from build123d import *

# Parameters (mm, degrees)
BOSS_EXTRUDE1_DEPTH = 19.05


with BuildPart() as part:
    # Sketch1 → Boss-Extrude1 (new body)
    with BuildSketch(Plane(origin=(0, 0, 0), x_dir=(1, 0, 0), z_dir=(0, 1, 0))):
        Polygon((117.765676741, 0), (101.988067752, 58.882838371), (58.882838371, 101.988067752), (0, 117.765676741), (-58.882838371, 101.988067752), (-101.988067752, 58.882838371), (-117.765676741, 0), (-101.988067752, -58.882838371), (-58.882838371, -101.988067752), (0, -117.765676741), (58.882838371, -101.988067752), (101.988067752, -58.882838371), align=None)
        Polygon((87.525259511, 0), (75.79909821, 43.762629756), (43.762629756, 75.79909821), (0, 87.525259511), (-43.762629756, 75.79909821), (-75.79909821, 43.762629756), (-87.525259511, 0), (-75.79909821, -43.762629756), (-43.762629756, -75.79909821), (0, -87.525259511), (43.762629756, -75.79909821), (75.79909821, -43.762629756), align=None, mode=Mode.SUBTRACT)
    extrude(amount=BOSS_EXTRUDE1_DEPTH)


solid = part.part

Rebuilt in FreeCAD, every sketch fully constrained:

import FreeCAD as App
import Part
import Sketcher

V = App.Vector
Q = App.Units.Quantity

doc = App.newDocument("Part")
body = doc.addObject("PartDesign::Body", "Body")

sketch1 = body.newObject("Sketcher::SketchObject", "Sketch")
sketch1.AttachmentSupport = (doc.getObject("XZ_Plane"), [""])
sketch1.MapMode = "FlatFace"
sketch1.addGeometry([
    Part.LineSegment(V(118, 0, 0), V(102, -59, 0)),
    Part.LineSegment(V(102, -59, 0), V(59, -102, 0)),
    Part.LineSegment(V(59, -102, 0), V(0, -118, 0)),
    Part.LineSegment(V(0, -118, 0), V(-59, -102, 0)),
    Part.LineSegment(V(-59, -102, 0), V(-102, -59, 0)),
    Part.LineSegment(V(-102, -59, 0), V(-118, 0, 0)),
    Part.LineSegment(V(-118, 0, 0), V(-102, 59, 0)),
    Part.LineSegment(V(-102, 59, 0), V(-59, 102, 0)),
    Part.LineSegment(V(-59, 102, 0), V(0, 118, 0)),
    Part.LineSegment(V(0, 118, 0), V(59, 102, 0)),
    Part.LineSegment(V(59, 102, 0), V(102, 59, 0)),
    Part.LineSegment(V(102, 59, 0), V(118, 0, 0)),
    Part.LineSegment(V(76, -44, 0), V(88, 0, 0)),
    Part.LineSegment(V(88, 0, 0), V(76, 44, 0)),
    Part.LineSegment(V(76, 44, 0), V(44, 76, 0)),
    Part.LineSegment(V(44, 76, 0), V(0, 88, 0)),
    Part.LineSegment(V(0, 88, 0), V(-44, 76, 0)),
    Part.LineSegment(V(-44, 76, 0), V(-76, 44, 0)),
    Part.LineSegment(V(-76, 44, 0), V(-88, 0, 0)),
    Part.LineSegment(V(-88, 0, 0), V(-76, -44, 0)),
    Part.LineSegment(V(-76, -44, 0), V(-44, -76, 0)),
    Part.LineSegment(V(-44, -76, 0), V(0, -88, 0)),
    Part.LineSegment(V(0, -88, 0), V(44, -76, 0)),
    Part.LineSegment(V(44, -76, 0), V(76, -44, 0)),
], False)
sketch1.addConstraint([
    Sketcher.Constraint("Coincident", 0, 2, 1, 1),
    Sketcher.Constraint("Coincident", 1, 2, 2, 1),
    Sketcher.Constraint("Coincident", 2, 2, 3, 1),
    Sketcher.Constraint("Coincident", 3, 2, 4, 1),
    Sketcher.Constraint("Coincident", 4, 2, 5, 1),
    Sketcher.Constraint("Coincident", 5, 2, 6, 1),
    Sketcher.Constraint("Coincident", 6, 2, 7, 1),
    Sketcher.Constraint("Coincident", 7, 2, 8, 1),
    Sketcher.Constraint("Coincident", 8, 2, 9, 1),
    Sketcher.Constraint("Coincident", 9, 2, 10, 1),
    Sketcher.Constraint("Coincident", 10, 2, 11, 1),
    Sketcher.Constraint("Coincident", 11, 2, 0, 1),
    Sketcher.Constraint("Coincident", 12, 2, 13, 1),
    Sketcher.Constraint("Coincident", 13, 2, 14, 1),
    Sketcher.Constraint("Coincident", 14, 2, 15, 1),
    Sketcher.Constraint("Coincident", 15, 2, 16, 1),
    Sketcher.Constraint("Coincident", 16, 2, 17, 1),
    Sketcher.Constraint("Coincident", 17, 2, 18, 1),
    Sketcher.Constraint("Coincident", 18, 2, 19, 1),
    Sketcher.Constraint("Coincident", 19, 2, 20, 1),
    Sketcher.Constraint("Coincident", 20, 2, 21, 1),
    Sketcher.Constraint("Coincident", 21, 2, 22, 1),
    Sketcher.Constraint("Coincident", 22, 2, 23, 1),
    Sketcher.Constraint("Coincident", 23, 2, 12, 1),
    Sketcher.Constraint("Symmetric", 0, 2, 6, 2, -1, 1),
    Sketcher.Constraint("Symmetric", 1, 2, 7, 2, -1, 1),
    Sketcher.Constraint("Symmetric", 2, 2, 8, 2, -1, 1),
    Sketcher.Constraint("Symmetric", 3, 2, 9, 2, -1, 1),
    Sketcher.Constraint("Symmetric", 4, 2, 10, 2, -1, 1),
    Sketcher.Constraint("Symmetric", 5, 2, 11, 2, -1, 1),
    Sketcher.Constraint("Symmetric", 12, 2, 18, 2, -1, 1),
    Sketcher.Constraint("Symmetric", 13, 2, 19, 2, -1, 1),
    Sketcher.Constraint("Symmetric", 14, 2, 20, 2, -1, 1),
    Sketcher.Constraint("Symmetric", 15, 2, 21, 2, -1, 1),
    Sketcher.Constraint("Symmetric", 16, 2, 22, 2, -1, 1),
    Sketcher.Constraint("Symmetric", 17, 2, 23, 2, -1, 1),
    Sketcher.Constraint("Symmetric", 1, 2, 3, 2, -2),
    Sketcher.Constraint("Symmetric", 0, 2, 4, 2, -2),
    Sketcher.Constraint("Symmetric", 14, 2, 16, 2, -2),
    Sketcher.Constraint("Symmetric", 13, 2, 17, 2, -2),
    Sketcher.Constraint("PointOnObject", 2, 2, -2),
    Sketcher.Constraint("PointOnObject", 5, 2, -1),
    Sketcher.Constraint("PointOnObject", 12, 2, -1),
    Sketcher.Constraint("PointOnObject", 15, 2, -2),
    Sketcher.Constraint("Perpendicular", 0, 3),
    Sketcher.Constraint("Perpendicular", 1, 4),
    Sketcher.Constraint("Perpendicular", 9, 12),
    Sketcher.Constraint("Parallel", 10, 14),
    Sketcher.Constraint("Perpendicular", 12, 15),
    Sketcher.Constraint("Equal", 0, 1),
    Sketcher.Constraint("Equal", 1, 2),
    Sketcher.Constraint("Equal", 13, 14),
    Sketcher.Constraint("Equal", 14, 15),
    Sketcher.Constraint("Angle", 0, Q("-105 deg")),
    Sketcher.Constraint("Distance", 0, Q("2.4 in")),
    Sketcher.Constraint("DistanceX", -1, 1, 13, 2, 75.799098),
])
pad1 = body.newObject("PartDesign::Pad", "Pad")
pad1.Profile = sketch1
pad1.Length = Q("0.75 in")
pad1.Reversed = True

doc.recompute()
